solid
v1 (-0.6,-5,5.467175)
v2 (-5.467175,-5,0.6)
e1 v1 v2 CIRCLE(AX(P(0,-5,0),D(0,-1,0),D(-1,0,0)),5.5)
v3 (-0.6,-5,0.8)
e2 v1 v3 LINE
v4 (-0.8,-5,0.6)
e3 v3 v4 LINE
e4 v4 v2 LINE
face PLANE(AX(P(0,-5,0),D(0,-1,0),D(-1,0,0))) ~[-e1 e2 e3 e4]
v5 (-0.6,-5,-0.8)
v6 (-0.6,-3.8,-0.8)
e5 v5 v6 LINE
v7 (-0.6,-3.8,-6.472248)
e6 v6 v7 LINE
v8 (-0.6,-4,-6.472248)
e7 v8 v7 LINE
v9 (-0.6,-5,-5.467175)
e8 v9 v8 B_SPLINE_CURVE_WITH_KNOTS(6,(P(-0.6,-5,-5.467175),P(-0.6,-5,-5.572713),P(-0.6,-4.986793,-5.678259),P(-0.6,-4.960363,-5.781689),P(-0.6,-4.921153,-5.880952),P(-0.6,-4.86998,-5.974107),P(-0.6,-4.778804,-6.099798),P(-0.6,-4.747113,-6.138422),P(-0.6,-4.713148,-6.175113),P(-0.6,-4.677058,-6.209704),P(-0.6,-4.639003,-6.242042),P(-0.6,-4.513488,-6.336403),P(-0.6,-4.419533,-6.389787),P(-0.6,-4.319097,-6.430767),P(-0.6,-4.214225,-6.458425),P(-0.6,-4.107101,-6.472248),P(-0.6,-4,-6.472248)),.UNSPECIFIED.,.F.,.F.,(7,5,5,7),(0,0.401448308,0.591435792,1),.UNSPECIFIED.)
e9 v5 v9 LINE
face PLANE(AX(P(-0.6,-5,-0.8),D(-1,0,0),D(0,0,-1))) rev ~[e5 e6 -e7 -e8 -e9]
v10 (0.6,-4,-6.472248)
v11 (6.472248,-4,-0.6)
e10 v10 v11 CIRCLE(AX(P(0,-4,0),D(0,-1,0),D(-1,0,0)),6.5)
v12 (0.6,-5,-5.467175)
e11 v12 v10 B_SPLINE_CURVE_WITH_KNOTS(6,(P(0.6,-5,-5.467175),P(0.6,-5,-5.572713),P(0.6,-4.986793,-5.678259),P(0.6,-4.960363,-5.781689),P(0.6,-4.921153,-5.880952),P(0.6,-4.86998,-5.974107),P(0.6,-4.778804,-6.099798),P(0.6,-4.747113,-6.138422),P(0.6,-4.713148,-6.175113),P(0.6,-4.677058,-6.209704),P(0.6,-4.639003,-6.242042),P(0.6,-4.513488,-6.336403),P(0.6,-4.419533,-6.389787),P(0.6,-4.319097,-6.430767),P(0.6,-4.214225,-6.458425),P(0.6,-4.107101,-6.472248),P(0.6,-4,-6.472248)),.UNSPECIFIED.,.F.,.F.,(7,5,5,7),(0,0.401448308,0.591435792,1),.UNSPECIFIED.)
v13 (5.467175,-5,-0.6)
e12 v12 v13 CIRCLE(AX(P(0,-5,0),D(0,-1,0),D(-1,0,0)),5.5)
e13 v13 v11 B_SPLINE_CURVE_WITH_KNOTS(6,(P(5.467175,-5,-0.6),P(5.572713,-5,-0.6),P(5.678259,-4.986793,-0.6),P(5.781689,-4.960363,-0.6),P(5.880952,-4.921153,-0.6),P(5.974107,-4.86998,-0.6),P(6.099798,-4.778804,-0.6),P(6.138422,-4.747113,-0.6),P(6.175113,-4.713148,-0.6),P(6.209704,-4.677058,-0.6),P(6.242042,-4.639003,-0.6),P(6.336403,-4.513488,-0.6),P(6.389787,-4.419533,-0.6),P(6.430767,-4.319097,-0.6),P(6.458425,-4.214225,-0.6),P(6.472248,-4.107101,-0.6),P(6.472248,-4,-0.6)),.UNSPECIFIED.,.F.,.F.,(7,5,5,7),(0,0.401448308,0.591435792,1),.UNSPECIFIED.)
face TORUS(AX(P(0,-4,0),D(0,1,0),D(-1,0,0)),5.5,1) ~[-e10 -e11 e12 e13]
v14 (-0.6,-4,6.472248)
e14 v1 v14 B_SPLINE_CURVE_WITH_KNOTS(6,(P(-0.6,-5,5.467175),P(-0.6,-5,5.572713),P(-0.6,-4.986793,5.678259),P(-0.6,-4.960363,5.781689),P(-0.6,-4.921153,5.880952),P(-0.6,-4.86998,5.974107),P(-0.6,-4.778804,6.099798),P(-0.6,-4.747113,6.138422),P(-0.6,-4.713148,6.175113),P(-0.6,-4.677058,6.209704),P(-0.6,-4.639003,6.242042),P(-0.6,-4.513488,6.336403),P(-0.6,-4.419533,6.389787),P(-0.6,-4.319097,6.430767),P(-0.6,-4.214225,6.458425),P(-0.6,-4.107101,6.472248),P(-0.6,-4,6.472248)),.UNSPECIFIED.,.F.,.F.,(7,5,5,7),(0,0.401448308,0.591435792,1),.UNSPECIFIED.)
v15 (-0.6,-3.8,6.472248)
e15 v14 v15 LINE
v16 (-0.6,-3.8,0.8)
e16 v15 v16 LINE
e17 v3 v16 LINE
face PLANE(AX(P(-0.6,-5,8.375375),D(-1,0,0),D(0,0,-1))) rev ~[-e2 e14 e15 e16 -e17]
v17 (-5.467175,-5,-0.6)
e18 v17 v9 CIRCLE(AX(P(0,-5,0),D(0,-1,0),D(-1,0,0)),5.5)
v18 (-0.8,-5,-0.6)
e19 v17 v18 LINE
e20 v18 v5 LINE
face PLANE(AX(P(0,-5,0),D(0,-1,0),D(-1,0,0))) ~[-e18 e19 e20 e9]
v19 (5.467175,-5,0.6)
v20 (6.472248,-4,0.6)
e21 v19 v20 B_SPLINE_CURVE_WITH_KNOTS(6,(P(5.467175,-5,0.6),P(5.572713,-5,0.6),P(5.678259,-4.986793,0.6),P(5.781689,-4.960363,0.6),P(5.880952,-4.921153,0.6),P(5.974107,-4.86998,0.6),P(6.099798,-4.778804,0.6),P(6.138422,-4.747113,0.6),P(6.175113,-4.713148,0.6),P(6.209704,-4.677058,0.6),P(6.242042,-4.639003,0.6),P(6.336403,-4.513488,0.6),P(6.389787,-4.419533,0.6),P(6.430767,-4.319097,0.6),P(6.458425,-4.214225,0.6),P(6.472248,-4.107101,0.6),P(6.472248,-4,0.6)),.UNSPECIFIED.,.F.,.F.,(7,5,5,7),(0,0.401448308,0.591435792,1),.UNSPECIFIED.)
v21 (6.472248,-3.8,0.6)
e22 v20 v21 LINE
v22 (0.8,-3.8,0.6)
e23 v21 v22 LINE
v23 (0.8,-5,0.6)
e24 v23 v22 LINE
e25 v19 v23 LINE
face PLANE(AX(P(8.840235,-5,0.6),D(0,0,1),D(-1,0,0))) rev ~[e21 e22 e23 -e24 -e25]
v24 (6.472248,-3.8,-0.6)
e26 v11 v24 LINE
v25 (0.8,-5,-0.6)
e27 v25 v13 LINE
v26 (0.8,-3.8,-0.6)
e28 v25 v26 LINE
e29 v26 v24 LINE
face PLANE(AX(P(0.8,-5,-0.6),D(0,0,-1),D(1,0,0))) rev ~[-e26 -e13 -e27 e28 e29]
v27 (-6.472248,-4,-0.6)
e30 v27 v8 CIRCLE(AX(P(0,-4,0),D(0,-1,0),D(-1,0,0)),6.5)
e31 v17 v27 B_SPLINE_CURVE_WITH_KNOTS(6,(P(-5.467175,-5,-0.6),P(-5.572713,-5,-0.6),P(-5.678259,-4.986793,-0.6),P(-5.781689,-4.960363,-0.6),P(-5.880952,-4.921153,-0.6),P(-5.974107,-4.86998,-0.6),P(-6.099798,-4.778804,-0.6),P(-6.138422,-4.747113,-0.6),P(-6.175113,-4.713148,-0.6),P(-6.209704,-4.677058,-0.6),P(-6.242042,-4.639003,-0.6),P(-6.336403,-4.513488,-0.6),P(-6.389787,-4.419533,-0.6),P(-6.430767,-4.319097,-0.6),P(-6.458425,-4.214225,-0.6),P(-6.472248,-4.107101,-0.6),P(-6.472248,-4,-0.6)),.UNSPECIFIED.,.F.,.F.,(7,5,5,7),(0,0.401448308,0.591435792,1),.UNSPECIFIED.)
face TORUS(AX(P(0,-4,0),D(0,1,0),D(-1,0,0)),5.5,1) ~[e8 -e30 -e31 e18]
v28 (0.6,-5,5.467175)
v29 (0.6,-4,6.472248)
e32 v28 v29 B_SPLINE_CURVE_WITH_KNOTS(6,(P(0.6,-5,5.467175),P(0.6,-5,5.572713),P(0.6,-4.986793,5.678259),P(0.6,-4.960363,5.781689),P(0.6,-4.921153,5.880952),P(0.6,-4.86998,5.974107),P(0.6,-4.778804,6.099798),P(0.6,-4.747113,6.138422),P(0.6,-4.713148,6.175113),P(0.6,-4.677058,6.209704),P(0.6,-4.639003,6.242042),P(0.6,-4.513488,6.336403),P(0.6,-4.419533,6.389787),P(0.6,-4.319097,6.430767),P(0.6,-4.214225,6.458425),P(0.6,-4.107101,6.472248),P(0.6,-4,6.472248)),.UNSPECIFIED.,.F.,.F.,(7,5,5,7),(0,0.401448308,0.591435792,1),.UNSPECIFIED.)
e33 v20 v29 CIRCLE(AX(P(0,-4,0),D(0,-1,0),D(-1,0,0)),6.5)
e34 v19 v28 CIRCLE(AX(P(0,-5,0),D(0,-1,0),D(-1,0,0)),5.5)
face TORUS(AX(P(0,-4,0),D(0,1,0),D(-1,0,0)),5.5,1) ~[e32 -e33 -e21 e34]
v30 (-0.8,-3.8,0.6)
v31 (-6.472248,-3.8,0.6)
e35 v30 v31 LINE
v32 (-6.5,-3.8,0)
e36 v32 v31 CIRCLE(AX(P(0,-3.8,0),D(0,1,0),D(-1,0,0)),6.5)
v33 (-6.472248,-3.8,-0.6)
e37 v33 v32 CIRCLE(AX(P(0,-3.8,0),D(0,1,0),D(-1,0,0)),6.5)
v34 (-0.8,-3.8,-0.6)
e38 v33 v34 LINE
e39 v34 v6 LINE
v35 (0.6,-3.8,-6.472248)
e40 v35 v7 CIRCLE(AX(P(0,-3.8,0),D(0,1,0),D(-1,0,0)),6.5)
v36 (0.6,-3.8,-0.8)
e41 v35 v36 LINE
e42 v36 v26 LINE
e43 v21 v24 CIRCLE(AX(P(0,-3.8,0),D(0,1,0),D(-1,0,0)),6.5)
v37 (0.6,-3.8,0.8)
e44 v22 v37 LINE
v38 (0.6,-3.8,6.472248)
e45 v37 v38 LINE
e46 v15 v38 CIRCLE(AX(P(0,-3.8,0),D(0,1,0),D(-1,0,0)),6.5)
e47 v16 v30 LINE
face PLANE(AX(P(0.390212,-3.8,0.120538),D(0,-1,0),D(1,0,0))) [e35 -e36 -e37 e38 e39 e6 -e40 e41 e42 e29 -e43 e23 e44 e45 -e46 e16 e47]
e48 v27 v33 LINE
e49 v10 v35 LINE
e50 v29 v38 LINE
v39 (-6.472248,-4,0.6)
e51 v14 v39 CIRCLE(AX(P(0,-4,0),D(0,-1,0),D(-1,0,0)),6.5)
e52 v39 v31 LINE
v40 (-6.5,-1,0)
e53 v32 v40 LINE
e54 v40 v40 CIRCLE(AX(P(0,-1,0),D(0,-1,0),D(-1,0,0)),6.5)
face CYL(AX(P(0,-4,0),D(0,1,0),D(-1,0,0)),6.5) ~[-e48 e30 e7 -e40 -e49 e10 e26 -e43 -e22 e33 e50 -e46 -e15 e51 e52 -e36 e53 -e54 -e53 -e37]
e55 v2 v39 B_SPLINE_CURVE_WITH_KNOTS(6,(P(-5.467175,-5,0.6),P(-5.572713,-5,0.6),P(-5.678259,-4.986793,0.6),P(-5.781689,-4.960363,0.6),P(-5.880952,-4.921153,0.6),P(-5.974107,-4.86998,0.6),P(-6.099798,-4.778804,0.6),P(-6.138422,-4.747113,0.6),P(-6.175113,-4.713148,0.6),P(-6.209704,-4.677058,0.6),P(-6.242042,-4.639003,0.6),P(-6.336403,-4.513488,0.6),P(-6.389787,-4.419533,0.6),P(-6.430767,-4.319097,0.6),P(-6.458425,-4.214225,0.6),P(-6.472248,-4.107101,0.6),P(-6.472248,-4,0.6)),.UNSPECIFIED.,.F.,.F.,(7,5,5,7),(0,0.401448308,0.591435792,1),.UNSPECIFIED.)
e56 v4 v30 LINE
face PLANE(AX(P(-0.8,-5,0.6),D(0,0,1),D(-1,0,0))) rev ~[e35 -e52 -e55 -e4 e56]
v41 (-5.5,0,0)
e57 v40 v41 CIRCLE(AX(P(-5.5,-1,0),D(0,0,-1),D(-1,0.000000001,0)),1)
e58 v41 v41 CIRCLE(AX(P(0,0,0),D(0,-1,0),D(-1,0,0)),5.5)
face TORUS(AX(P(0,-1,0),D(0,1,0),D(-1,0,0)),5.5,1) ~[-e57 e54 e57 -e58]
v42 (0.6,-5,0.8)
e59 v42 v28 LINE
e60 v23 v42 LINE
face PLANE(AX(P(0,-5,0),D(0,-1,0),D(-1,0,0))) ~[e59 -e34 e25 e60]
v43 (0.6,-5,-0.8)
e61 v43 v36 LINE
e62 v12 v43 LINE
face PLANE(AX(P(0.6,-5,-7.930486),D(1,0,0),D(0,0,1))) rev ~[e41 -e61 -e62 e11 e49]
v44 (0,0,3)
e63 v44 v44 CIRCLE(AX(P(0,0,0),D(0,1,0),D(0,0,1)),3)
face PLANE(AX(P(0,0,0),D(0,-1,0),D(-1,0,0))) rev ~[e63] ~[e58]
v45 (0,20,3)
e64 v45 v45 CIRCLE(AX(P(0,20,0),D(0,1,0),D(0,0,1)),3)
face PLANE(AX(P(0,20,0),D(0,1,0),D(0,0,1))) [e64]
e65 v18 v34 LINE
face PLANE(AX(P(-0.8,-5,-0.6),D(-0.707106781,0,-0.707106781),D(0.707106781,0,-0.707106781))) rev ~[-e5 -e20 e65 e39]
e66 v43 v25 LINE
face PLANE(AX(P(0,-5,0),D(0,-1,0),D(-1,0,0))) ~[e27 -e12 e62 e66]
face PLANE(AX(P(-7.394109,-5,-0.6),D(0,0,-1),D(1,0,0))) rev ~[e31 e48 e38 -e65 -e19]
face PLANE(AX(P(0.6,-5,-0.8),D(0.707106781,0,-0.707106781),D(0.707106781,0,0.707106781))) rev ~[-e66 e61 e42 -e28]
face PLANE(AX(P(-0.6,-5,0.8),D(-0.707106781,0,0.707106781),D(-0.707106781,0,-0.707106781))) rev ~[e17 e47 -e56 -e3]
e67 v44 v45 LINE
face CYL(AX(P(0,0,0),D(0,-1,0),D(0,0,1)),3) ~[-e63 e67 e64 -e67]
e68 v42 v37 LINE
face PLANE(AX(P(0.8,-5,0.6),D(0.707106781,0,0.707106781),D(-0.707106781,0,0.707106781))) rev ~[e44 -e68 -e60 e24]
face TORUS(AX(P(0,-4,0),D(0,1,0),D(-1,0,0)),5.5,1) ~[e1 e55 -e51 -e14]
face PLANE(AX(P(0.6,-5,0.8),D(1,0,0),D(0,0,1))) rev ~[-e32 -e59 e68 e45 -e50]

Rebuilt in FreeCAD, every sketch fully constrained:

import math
import FreeCAD as App
import Part
import Sketcher
from FreeCAD import Vector

doc = App.newDocument("Part")
body = doc.addObject("PartDesign::Body", "Body")

# Sketch on XZ plane
sketch1 = body.newObject("Sketcher::SketchObject", "Sketch")
sketch1.AttachmentSupport = (doc.getObject("XZ_Plane"), [""])
sketch1.MapMode = "FlatFace"
sketch1.addGeometry(Part.Circle(Vector(0, 0, 0), Vector(0, 0, 1), 3), False)
sketch1.addConstraint(Sketcher.Constraint("Coincident", 0, 3, -1, 1))
sketch1.addConstraint(Sketcher.Constraint("Diameter", 0, 6.0))
pad1 = body.newObject("PartDesign::Pad", "Pad")
pad1.Profile = sketch1
pad1.Length = 20
pad1.Reversed = True

# Sketch on XY plane
sketch2 = body.newObject("Sketcher::SketchObject", "Sketch001")
sketch2.AttachmentSupport = (doc.getObject("XY_Plane"), [""])
sketch2.MapMode = "FlatFace"
sketch2.addGeometry(Part.LineSegment(Vector(0, -5, 0), Vector(0, 0, 0)), False)
sketch2.addGeometry(Part.LineSegment(Vector(0, 0, 0), Vector(-5.5, 0, 0)), False)
sketch2.addGeometry(Part.ArcOfCircle(Part.Circle(Vector(-5.5, -1, 0), Vector(0, 0, 1), 1), math.radians(90), math.radians(180)), False)
sketch2.addGeometry(Part.LineSegment(Vector(-6.5, -1, 0), Vector(-6.5, -4, 0)), False)
sketch2.addGeometry(Part.ArcOfCircle(Part.Circle(Vector(-5.5, -4, 0), Vector(0, 0, 1), 1), math.radians(-180), math.radians(-90)), False)
sketch2.addGeometry(Part.LineSegment(Vector(-5.5, -5, 0), Vector(0, -5, 0)), False)
sketch2.addConstraint(Sketcher.Constraint("Coincident", 0, 2, 1, 1))
sketch2.addConstraint(Sketcher.Constraint("Tangent", 1, 2, 2, 1))
sketch2.addConstraint(Sketcher.Constraint("Tangent", 2, 2, 3, 1))
sketch2.addConstraint(Sketcher.Constraint("Tangent", 3, 2, 4, 1))
sketch2.addConstraint(Sketcher.Constraint("Tangent", 4, 2, 5, 1))
sketch2.addConstraint(Sketcher.Constraint("Coincident", 5, 2, 0, 1))
sketch2.addConstraint(Sketcher.Constraint("Vertical", 0))
sketch2.addConstraint(Sketcher.Constraint("Horizontal", 1))
sketch2.addConstraint(Sketcher.Constraint("Vertical", 3))
sketch2.addConstraint(Sketcher.Constraint("Horizontal", 5))
sketch2.addConstraint(Sketcher.Constraint("Coincident", 0, 2, -1, 1))
sketch2.addConstraint(Sketcher.Constraint("Equal", 2, 4))
sketch2.addConstraint(Sketcher.Constraint("Radius", 2, 1.0))
sketch2.addConstraint(Sketcher.Constraint("DistanceY", 0, 1, 0, 2, 5.0))
sketch2.addConstraint(Sketcher.Constraint("DistanceX", 1, 2, 1, 1, 5.5))
revolution = body.newObject("PartDesign::Revolution", "Revolution")
revolution.Profile = sketch2
revolution.ReferenceAxis = (sketch2, ["V_Axis"])
revolution.Angle = 360

# Sketch on XZ plane
sketch3 = body.newObject("Sketcher::SketchObject", "Sketch002")
sketch3.AttachmentSupport = (doc.getObject("XZ_Plane"), [""])
sketch3.MapMode = "FlatFace"
sketch3.AttachmentOffset = App.Placement(Vector(0, 0, 5), App.Rotation())
sketch3.addGeometry(Part.LineSegment(Vector(0.6, 8.375375, 0), Vector(-0.6, 8.375375, 0)), False)
sketch3.addGeometry(Part.LineSegment(Vector(-0.6, 8.375375, 0), Vector(-0.6, 0.8, 0)), False)
sketch3.addGeometry(Part.LineSegment(Vector(-0.6, 0.8, 0), Vector(-0.8, 0.6, 0)), False)
sketch3.addGeometry(Part.LineSegment(Vector(-0.8, 0.6, 0), Vector(-7.394109, 0.6, 0)), False)
sketch3.addGeometry(Part.LineSegment(Vector(-7.394109, 0.6, 0), Vector(-7.394109, -0.6, 0)), False)
sketch3.addGeometry(Part.LineSegment(Vector(-7.394109, -0.6, 0), Vector(-0.8, -0.6, 0)), False)
sketch3.addGeometry(Part.LineSegment(Vector(-0.8, -0.6, 0), Vector(-0.6, -0.8, 0)), False)
sketch3.addGeometry(Part.LineSegment(Vector(-0.6, -0.8, 0), Vector(-0.6, -7.930486, 0)), False)
sketch3.addGeometry(Part.LineSegment(Vector(-0.6, -7.930486, 0), Vector(0.6, -7.930486, 0)), False)
sketch3.addGeometry(Part.LineSegment(Vector(0.6, -7.930486, 0), Vector(0.6, -0.8, 0)), False)
sketch3.addGeometry(Part.LineSegment(Vector(0.6, -0.8, 0), Vector(0.8, -0.6, 0)), False)
sketch3.addGeometry(Part.LineSegment(Vector(0.8, -0.6, 0), Vector(8.840235, -0.6, 0)), False)
sketch3.addGeometry(Part.LineSegment(Vector(8.840235, -0.6, 0), Vector(8.840235, 0.6, 0)), False)
sketch3.addGeometry(Part.LineSegment(Vector(8.840235, 0.6, 0), Vector(0.8, 0.6, 0)), False)
sketch3.addGeometry(Part.LineSegment(Vector(0.8, 0.6, 0), Vector(0.6, 0.8, 0)), False)
sketch3.addGeometry(Part.LineSegment(Vector(0.6, 0.8, 0), Vector(0.6, 8.375375, 0)), False)
sketch3.addConstraint(Sketcher.Constraint("Coincident", 0, 2, 1, 1))
sketch3.addConstraint(Sketcher.Constraint("Coincident", 1, 2, 2, 1))
sketch3.addConstraint(Sketcher.Constraint("Coincident", 2, 2, 3, 1))
sketch3.addConstraint(Sketcher.Constraint("Coincident", 3, 2, 4, 1))
sketch3.addConstraint(Sketcher.Constraint("Coincident", 4, 2, 5, 1))
sketch3.addConstraint(Sketcher.Constraint("Coincident", 5, 2, 6, 1))
sketch3.addConstraint(Sketcher.Constraint("Coincident", 6, 2, 7, 1))
sketch3.addConstraint(Sketcher.Constraint("Coincident", 7, 2, 8, 1))
sketch3.addConstraint(Sketcher.Constraint("Coincident", 8, 2, 9, 1))
sketch3.addConstraint(Sketcher.Constraint("Coincident", 9, 2, 10, 1))
sketch3.addConstraint(Sketcher.Constraint("Coincident", 10, 2, 11, 1))
sketch3.addConstraint(Sketcher.Constraint("Coincident", 11, 2, 12, 1))
sketch3.addConstraint(Sketcher.Constraint("Coincident", 12, 2, 13, 1))
sketch3.addConstraint(Sketcher.Constraint("Coincident", 13, 2, 14, 1))
sketch3.addConstraint(Sketcher.Constraint("Coincident", 14, 2, 15, 1))
sketch3.addConstraint(Sketcher.Constraint("Coincident", 15, 2, 0, 1))
sketch3.addConstraint(Sketcher.Constraint("Horizontal", 0))
sketch3.addConstraint(Sketcher.Constraint("Vertical", 1))
sketch3.addConstraint(Sketcher.Constraint("Horizontal", 3))
sketch3.addConstraint(Sketcher.Constraint("Vertical", 4))
sketch3.addConstraint(Sketcher.Constraint("Horizontal", 5))
sketch3.addConstraint(Sketcher.Constraint("Vertical", 7))
sketch3.addConstraint(Sketcher.Constraint("Horizontal", 8))
sketch3.addConstraint(Sketcher.Constraint("Vertical", 9))
sketch3.addConstraint(Sketcher.Constraint("Horizontal", 11))
sketch3.addConstraint(Sketcher.Constraint("Vertical", 12))
sketch3.addConstraint(Sketcher.Constraint("Horizontal", 13))
sketch3.addConstraint(Sketcher.Constraint("Vertical", 15))
sketch3.addConstraint(Sketcher.Constraint("Symmetric", 1, 2, 9, 2, -1, 1))
sketch3.addConstraint(Sketcher.Constraint("Symmetric", 2, 2, 10, 2, -1, 1))
sketch3.addConstraint(Sketcher.Constraint("Symmetric", 5, 2, 13, 2, -1, 1))
sketch3.addConstraint(Sketcher.Constraint("Symmetric", 6, 2, 14, 2, -1, 1))
sketch3.addConstraint(Sketcher.Constraint("Symmetric", 6, 2, 9, 2, -2))
sketch3.addConstraint(Sketcher.Constraint("Symmetric", 5, 2, 10, 2, -2))
sketch3.addConstraint(Sketcher.Constraint("Perpendicular", 2, 6))
sketch3.addConstraint(Sketcher.Constraint("Equal", 8, 4))
sketch3.addConstraint(Sketcher.Constraint("DistanceX", 0, 2, 0, 1, 1.2))
sketch3.addConstraint(Sketcher.Constraint("DistanceY", -1, 1, 1, 2, 0.8))
sketch3.addConstraint(Sketcher.Constraint("DistanceX", 3, 2, 3, 1, 6.594109))
sketch3.addConstraint(Sketcher.Constraint("DistanceX", 11, 1, 11, 2, 8.040235))
sketch3.addConstraint(Sketcher.Constraint("DistanceY", 1, 2, 1, 1, 7.575375))
sketch3.addConstraint(Sketcher.Constraint("DistanceY", 7, 2, 7, 1, 7.130486))
pocket1 = body.newObject("PartDesign::Pocket", "Pocket")
pocket1.Profile = sketch3
pocket1.Length = 1.2

doc.recompute()
